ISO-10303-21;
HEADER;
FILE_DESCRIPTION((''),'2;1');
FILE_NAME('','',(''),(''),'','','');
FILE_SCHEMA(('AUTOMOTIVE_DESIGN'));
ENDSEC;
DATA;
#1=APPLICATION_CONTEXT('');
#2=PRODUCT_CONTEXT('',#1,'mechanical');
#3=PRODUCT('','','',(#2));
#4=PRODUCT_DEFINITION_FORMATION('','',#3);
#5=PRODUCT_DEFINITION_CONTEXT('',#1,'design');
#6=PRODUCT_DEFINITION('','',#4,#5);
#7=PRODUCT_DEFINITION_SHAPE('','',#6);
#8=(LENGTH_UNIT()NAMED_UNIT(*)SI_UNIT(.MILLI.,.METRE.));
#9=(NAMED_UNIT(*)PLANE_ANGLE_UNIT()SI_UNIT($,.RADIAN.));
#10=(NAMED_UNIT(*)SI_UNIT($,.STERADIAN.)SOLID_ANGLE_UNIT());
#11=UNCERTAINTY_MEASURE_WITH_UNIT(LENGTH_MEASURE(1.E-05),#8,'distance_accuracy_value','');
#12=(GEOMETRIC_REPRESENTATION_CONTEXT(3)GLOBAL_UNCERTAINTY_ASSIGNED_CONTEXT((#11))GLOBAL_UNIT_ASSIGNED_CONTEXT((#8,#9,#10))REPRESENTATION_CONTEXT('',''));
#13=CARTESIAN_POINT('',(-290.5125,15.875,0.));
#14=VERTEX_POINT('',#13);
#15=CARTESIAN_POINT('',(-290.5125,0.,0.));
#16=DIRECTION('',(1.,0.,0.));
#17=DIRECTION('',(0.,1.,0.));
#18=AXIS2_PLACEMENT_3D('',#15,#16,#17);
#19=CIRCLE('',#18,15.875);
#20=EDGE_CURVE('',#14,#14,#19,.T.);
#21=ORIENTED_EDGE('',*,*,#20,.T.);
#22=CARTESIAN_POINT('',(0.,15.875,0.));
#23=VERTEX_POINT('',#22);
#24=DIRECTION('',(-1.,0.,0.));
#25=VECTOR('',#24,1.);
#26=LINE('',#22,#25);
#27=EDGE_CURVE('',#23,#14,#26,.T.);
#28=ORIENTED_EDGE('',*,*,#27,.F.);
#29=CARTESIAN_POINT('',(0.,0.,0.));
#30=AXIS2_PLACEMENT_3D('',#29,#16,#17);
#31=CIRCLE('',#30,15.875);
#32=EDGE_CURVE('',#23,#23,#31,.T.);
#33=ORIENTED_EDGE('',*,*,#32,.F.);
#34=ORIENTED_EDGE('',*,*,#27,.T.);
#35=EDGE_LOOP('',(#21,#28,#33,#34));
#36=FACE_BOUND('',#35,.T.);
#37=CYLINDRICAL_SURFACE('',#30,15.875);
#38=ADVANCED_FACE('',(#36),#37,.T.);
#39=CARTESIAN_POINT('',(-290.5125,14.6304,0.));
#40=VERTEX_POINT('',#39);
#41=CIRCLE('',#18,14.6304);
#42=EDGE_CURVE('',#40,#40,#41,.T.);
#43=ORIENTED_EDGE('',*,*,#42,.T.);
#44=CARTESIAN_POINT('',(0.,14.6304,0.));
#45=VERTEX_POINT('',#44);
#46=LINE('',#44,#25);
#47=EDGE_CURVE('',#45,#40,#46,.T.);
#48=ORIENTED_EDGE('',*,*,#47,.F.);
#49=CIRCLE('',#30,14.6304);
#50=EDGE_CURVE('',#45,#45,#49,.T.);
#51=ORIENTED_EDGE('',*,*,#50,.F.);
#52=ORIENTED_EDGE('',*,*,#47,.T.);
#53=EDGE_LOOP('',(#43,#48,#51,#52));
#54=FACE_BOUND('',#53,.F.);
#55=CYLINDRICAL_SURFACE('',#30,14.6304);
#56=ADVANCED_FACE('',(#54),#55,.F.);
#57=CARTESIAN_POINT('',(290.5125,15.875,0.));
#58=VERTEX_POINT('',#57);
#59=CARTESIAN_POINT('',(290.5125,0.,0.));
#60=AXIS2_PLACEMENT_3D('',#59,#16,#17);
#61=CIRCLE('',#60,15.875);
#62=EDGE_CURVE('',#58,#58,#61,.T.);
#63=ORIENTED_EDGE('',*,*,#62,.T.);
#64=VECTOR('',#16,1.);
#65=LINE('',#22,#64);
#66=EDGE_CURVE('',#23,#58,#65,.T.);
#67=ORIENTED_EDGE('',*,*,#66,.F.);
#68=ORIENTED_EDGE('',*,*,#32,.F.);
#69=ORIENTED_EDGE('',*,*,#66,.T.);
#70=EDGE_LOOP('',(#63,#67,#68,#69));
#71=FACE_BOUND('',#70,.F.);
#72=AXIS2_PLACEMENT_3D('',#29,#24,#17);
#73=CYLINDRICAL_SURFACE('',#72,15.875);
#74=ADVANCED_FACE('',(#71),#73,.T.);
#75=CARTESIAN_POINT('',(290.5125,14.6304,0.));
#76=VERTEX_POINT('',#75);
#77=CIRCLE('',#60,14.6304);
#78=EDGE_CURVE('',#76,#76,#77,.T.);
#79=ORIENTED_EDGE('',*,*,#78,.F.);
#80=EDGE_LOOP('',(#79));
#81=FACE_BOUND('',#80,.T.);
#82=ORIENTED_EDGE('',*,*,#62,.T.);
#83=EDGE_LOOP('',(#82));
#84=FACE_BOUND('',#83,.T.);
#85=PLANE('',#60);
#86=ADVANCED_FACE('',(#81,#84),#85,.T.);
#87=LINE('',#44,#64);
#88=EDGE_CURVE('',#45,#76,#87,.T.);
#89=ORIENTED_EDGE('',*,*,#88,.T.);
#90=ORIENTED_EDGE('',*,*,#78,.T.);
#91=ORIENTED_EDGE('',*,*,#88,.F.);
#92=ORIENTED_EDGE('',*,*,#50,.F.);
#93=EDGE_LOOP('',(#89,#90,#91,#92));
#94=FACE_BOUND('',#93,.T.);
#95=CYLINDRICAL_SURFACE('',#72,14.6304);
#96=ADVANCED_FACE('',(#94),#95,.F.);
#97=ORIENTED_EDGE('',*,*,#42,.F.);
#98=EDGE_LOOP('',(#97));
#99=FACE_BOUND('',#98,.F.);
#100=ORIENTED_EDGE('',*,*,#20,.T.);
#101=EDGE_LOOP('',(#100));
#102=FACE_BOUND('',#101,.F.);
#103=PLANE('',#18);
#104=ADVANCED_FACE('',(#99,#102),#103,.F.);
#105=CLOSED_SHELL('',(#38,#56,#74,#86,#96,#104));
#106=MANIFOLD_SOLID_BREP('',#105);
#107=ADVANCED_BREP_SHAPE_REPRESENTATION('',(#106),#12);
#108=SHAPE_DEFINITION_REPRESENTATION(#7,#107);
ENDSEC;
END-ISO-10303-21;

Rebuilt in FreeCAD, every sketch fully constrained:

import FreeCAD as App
import Part
import Sketcher

V = App.Vector
Q = App.Units.Quantity

doc = App.newDocument("Part")
body = doc.addObject("PartDesign::Body", "Body")

sketch1 = body.newObject("Sketcher::SketchObject", "Sketch")
sketch1.AttachmentSupport = (doc.getObject("YZ_Plane"), [""])
sketch1.MapMode = "FlatFace"
sketch1.addGeometry(Part.Circle(V(0, 0, 0), V(0, 0, 1), 16), False)
sketch1.addGeometry(Part.Circle(V(0, 0, 0), V(0, 0, 1), 15), False)
sketch1.addConstraint(Sketcher.Constraint("Coincident", 0, 3, -1, 1))
sketch1.addConstraint(Sketcher.Constraint("Coincident", 1, 3, -1, 1))
sketch1.addConstraint(Sketcher.Constraint("Diameter", 0, Q("1.25 in")))
sketch1.addConstraint(Sketcher.Constraint("Diameter", 1, Q("1.152 in")))
pad1 = body.newObject("PartDesign::Pad", "Pad")
pad1.Profile = sketch1
pad1.Length = Q("22.875 in")
pad1.Midplane = True

doc.recompute()
